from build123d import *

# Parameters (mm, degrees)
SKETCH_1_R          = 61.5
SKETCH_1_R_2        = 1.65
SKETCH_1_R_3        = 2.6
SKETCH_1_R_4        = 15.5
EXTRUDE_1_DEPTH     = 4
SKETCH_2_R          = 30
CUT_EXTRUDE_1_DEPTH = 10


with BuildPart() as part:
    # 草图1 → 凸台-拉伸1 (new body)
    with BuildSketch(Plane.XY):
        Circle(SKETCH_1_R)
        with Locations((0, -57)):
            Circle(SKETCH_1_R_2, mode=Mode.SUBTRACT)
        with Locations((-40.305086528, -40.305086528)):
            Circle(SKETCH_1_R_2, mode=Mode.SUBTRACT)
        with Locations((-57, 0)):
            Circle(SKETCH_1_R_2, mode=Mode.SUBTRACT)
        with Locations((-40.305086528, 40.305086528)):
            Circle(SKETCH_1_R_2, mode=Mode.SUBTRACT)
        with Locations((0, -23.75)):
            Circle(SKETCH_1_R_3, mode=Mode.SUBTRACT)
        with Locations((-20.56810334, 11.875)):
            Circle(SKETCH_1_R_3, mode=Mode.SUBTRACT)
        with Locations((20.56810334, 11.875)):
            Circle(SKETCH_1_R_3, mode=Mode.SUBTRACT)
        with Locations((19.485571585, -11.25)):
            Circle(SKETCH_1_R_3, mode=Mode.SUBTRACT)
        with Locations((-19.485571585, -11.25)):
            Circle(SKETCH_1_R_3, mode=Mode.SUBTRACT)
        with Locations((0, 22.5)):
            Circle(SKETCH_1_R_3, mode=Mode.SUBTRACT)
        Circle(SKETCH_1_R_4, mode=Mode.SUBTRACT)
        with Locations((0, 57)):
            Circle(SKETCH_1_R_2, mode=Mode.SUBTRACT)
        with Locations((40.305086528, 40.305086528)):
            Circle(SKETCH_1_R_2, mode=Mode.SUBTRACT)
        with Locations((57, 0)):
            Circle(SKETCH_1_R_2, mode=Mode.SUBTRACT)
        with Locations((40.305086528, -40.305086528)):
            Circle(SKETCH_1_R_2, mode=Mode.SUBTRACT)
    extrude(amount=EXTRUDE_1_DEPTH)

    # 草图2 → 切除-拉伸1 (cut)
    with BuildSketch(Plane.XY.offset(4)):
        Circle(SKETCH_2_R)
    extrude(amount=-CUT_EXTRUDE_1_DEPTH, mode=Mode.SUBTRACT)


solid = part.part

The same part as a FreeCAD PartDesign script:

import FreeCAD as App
import Part
import Sketcher

doc = App.newDocument("Part")
body = doc.addObject("PartDesign::Body", "Body")

# Sketch on XY plane
sketch1 = doc.addObject("Sketcher::SketchObject", "Sketch")
body.addObject(sketch1)
sketch1.AttachmentSupport = (doc.XY_Plane, [""])
sketch1.MapMode = "FlatFace"
sketch1.addGeometry([
    Part.Circle(App.Vector(0, 0, 0), App.Vector(0, 0, 1), 61.5),  # 0
    Part.Circle(App.Vector(-40.3, -40.3, 0), App.Vector(0, 0, 1), 1.6),  # 1
    Part.Circle(App.Vector(-19.5, -11.2, 0), App.Vector(0, 0, 1), 2.6),  # 2
    Part.Circle(App.Vector(0, -57, 0), App.Vector(0, 0, 1), 1.6),  # 3
    Part.Circle(App.Vector(40.3, -40.3, 0), App.Vector(0, 0, 1), 1.6),  # 4
    Part.Circle(App.Vector(0, -23.8, 0), App.Vector(0, 0, 1), 2.6),  # 5
    Part.Circle(App.Vector(0, 0, 0), App.Vector(0, 0, 1), 15.5),  # 6
    Part.Circle(App.Vector(19.5, -11.2, 0), App.Vector(0, 0, 1), 2.6),  # 7
    Part.Circle(App.Vector(-57, 0, 0), App.Vector(0, 0, 1), 1.6),  # 8
    Part.Circle(App.Vector(-20.6, 11.9, 0), App.Vector(0, 0, 1), 2.6),  # 9
    Part.Circle(App.Vector(-40.3, 40.3, 0), App.Vector(0, 0, 1), 1.6),  # 10
    Part.Circle(App.Vector(20.6, 11.9, 0), App.Vector(0, 0, 1), 2.6),  # 11
    Part.Circle(App.Vector(0, 22.5, 0), App.Vector(0, 0, 1), 2.6),  # 12
    Part.Circle(App.Vector(57, 0, 0), App.Vector(0, 0, 1), 1.6),  # 13
    Part.Circle(App.Vector(0, 57, 0), App.Vector(0, 0, 1), 1.6),  # 14
    Part.Circle(App.Vector(40.3, 40.3, 0), App.Vector(0, 0, 1), 1.6),  # 15
], False)
sketch1.addConstraint([
    Sketcher.Constraint("Coincident", 0, 3, -1, 1),
    Sketcher.Constraint("Coincident", 6, 3, -1, 1),
    Sketcher.Constraint("Equal", 1, 3),
    Sketcher.Constraint("Equal", 3, 4),
    Sketcher.Constraint("Equal", 2, 5),
    Sketcher.Constraint("Equal", 5, 7),
    Sketcher.Constraint("Equal", 4, 8),
    Sketcher.Constraint("Equal", 7, 9),
    Sketcher.Constraint("Equal", 8, 10),
    Sketcher.Constraint("Equal", 9, 11),
    Sketcher.Constraint("Equal", 11, 12),
    Sketcher.Constraint("Equal", 10, 13),
    Sketcher.Constraint("Equal", 13, 14),
    Sketcher.Constraint("Equal", 14, 15),
    Sketcher.Constraint("Symmetric", 4, 3, 10, 3, -1, 1),
    Sketcher.Constraint("Symmetric", 8, 3, 13, 3, -1, 1),
    Sketcher.Constraint("Symmetric", 3, 3, 14, 3, -1, 1),
    Sketcher.Constraint("Symmetric", 1, 3, 15, 3, -1, 1),
    Sketcher.Constraint("Symmetric", 1, 3, 4, 3, -2),
    Sketcher.Constraint("Symmetric", 2, 3, 7, 3, -2),
    Sketcher.Constraint("Symmetric", 9, 3, 11, 3, -2),
    Sketcher.Constraint("PointOnObject", 3, 3, -2),
    Sketcher.Constraint("PointOnObject", 5, 3, -2),
    Sketcher.Constraint("PointOnObject", 8, 3, -1),
    Sketcher.Constraint("PointOnObject", 12, 3, -2),
    Sketcher.Constraint("Diameter", 0, 123.0),
    Sketcher.Constraint("Diameter", 6, 31.0),
    Sketcher.Constraint("Diameter", 1, 3.3),
    Sketcher.Constraint("Diameter", 2, 5.2),
    Sketcher.Constraint("DistanceY", 3, 3, -1, 1, 57.0),
    Sketcher.Constraint("DistanceX", 8, 3, -1, 1, 57.0),
    Sketcher.Constraint("DistanceY", -1, 1, 12, 3, 22.5),
    Sketcher.Constraint("DistanceY", 5, 3, 2, 3, 12.5),
    Sketcher.Constraint("DistanceY", 2, 3, -1, 1, 11.25),
    Sketcher.Constraint("DistanceY", -1, 1, 9, 3, 11.875),
    Sketcher.Constraint("DistanceX", 2, 3, -1, 1, 19.485572),
    Sketcher.Constraint("DistanceX", 2, 3, 4, 3, 59.790658),
    Sketcher.Constraint("DistanceX", 9, 3, 2, 3, 1.082532),
    Sketcher.Constraint("DistanceY", 1, 3, -1, 1, 40.305087),
])
pad1 = doc.addObject("PartDesign::Pad", "Pad")
body.addObject(pad1)
pad1.Profile = sketch1
pad1.Length = 4

# Sketch on XY plane
sketch2 = doc.addObject("Sketcher::SketchObject", "Sketch001")
body.addObject(sketch2)
sketch2.AttachmentSupport = (doc.XY_Plane, [""])
sketch2.MapMode = "FlatFace"
sketch2.AttachmentOffset = App.Placement(App.Vector(0, 0, 4), App.Rotation())
sketch2.addGeometry(Part.Circle(App.Vector(0, 0, 0), App.Vector(0, 0, 1), 30), False)
sketch2.addConstraint([
    Sketcher.Constraint("Coincident", 0, 3, -1, 1),
    Sketcher.Constraint("Diameter", 0, 60.0),
])
pocket1 = doc.addObject("PartDesign::Pocket", "Pocket")
body.addObject(pocket1)
pocket1.Profile = sketch2
pocket1.Length = 10

doc.recompute()
